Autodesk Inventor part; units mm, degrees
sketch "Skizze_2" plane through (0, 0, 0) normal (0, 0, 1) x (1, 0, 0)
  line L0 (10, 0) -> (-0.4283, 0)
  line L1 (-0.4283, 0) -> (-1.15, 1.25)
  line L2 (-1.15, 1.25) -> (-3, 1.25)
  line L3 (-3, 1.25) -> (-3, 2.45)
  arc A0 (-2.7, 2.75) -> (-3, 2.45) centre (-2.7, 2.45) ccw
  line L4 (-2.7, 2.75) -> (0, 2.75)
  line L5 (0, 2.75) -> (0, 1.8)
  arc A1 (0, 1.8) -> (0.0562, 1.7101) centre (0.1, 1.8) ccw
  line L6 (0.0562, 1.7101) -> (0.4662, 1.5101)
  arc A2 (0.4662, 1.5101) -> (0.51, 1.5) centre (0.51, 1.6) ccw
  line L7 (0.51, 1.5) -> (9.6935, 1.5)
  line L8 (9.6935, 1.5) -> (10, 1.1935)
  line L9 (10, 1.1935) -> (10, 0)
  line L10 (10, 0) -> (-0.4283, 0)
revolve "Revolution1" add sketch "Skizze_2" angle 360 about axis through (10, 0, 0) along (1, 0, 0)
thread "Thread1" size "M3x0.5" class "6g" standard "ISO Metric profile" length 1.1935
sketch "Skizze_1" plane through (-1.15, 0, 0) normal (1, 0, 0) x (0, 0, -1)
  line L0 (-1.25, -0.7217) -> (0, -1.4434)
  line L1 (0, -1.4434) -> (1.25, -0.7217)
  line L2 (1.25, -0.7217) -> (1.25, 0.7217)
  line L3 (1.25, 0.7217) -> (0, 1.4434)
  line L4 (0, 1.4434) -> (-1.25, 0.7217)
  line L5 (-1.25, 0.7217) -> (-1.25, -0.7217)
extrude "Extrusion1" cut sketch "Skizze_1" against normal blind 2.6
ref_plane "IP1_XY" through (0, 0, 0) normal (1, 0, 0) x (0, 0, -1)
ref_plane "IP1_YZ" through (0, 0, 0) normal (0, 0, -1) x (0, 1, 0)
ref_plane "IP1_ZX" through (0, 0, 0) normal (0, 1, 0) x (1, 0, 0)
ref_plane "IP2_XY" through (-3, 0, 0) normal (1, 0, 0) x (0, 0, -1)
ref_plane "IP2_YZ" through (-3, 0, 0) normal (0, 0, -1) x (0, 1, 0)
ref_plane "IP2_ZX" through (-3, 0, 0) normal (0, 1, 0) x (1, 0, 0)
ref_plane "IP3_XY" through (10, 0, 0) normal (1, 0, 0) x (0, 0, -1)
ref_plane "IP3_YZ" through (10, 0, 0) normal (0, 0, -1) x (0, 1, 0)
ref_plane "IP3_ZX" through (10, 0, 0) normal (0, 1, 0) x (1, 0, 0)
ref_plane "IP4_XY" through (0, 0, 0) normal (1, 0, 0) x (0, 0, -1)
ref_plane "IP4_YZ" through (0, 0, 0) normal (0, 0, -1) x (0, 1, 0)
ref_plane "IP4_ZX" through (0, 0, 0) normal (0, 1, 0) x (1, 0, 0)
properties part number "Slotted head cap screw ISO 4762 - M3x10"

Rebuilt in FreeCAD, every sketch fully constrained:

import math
import FreeCAD as App
import Part
import Sketcher

V = App.Vector
Q = App.Units.Quantity

doc = App.newDocument("Part")
body = doc.addObject("PartDesign::Body", "Body")

# Sketch on XY plane
sketch1 = body.newObject("Sketcher::SketchObject", "Sketch")
sketch1.AttachmentSupport = (doc.getObject("XY_Plane"), [""])
sketch1.MapMode = "FlatFace"
sketch1.addGeometry([
    Part.LineSegment(V(-0.428, 0, 0), V(10, 0, 0)),  # 0
    Part.LineSegment(V(10, 0, 0), V(10, 1.194, 0)),  # 1
    Part.LineSegment(V(10, 1.194, 0), V(9.694, 1.5, 0)),  # 2
    Part.LineSegment(V(9.694, 1.5, 0), V(0.51, 1.5, 0)),  # 3
    Part.ArcOfCircle(Part.Circle(V(0.51, 1.6, 0), V(0, 0, 1), 0.1), math.radians(-116), math.radians(-90)),  # 4
    Part.LineSegment(V(0.466, 1.51, 0), V(0.056, 1.71, 0)),  # 5
    Part.ArcOfCircle(Part.Circle(V(0.1, 1.8, 0), V(0, 0, 1), 0.1), math.radians(180), math.radians(244)),  # 6
    Part.LineSegment(V(0, 1.8, 0), V(0, 2.75, 0)),  # 7
    Part.LineSegment(V(0, 2.75, 0), V(-2.7, 2.75, 0)),  # 8
    Part.ArcOfCircle(Part.Circle(V(-2.7, 2.45, 0), V(0, 0, 1), 0.3), math.radians(90), math.radians(180)),  # 9
    Part.LineSegment(V(-3, 2.45, 0), V(-3, 1.25, 0)),  # 10
    Part.LineSegment(V(-3, 1.25, 0), V(-1.15, 1.25, 0)),  # 11
    Part.LineSegment(V(-1.15, 1.25, 0), V(-0.428, 0, 0)),  # 12
], False)
sketch1.addConstraint([
    Sketcher.Constraint("Coincident", 0, 2, 1, 1),
    Sketcher.Constraint("Coincident", 1, 2, 2, 1),
    Sketcher.Constraint("Coincident", 2, 2, 3, 1),
    Sketcher.Constraint("Tangent", 3, 2, 4, 2),
    Sketcher.Constraint("Tangent", 4, 1, 5, 1),
    Sketcher.Constraint("Tangent", 5, 2, 6, 2),
    Sketcher.Constraint("Tangent", 6, 1, 7, 1),
    Sketcher.Constraint("Coincident", 7, 2, 8, 1),
    Sketcher.Constraint("Tangent", 8, 2, 9, 1),
    Sketcher.Constraint("Tangent", 9, 2, 10, 1),
    Sketcher.Constraint("Coincident", 10, 2, 11, 1),
    Sketcher.Constraint("Coincident", 11, 2, 12, 1),
    Sketcher.Constraint("Coincident", 12, 2, 0, 1),
    Sketcher.Constraint("Horizontal", 0),
    Sketcher.Constraint("Vertical", 1),
    Sketcher.Constraint("Horizontal", 3),
    Sketcher.Constraint("Vertical", 7),
    Sketcher.Constraint("Horizontal", 8),
    Sketcher.Constraint("Vertical", 10),
    Sketcher.Constraint("Horizontal", 11),
    Sketcher.Constraint("Equal", 4, 6),
    Sketcher.Constraint("PointOnObject", 0, 2, -1),
    Sketcher.Constraint("PointOnObject", 6, 1, -2),
    Sketcher.Constraint("Radius", 4, Q("0.1 mm")),
    Sketcher.Constraint("Radius", 9, Q("0.3 mm")),
    Sketcher.Constraint("Angle", 2, Q("135 deg")),
    Sketcher.Constraint("Angle", 12, Q("-59.9996 deg")),
    Sketcher.Constraint("DistanceX", 8, 2, 8, 1, Q("2.7 mm")),
    Sketcher.Constraint("DistanceY", 10, 2, 10, 1, Q("1.2 mm")),
    Sketcher.Constraint("DistanceX", -1, 1, 0, 2, Q("10 mm")),
    Sketcher.Constraint("DistanceX", 11, 1, 11, 2, Q("1.85 mm")),
    Sketcher.Constraint("DistanceY", 7, 1, 7, 2, Q("0.95 mm")),
    Sketcher.Constraint("DistanceY", -1, 1, 4, 3, Q("1.6 mm")),
    Sketcher.Constraint("DistanceY", -1, 1, 6, 3, Q("1.8 mm")),
    Sketcher.Constraint("DistanceX", -1, 1, 4, 3, Q("0.51 mm")),
    Sketcher.Constraint("DistanceX", 3, 2, 3, 1, Q("9.1835 mm")),
])
revolution = body.newObject("PartDesign::Revolution", "Revolution")
revolution.Profile = sketch1
revolution.ReferenceAxis = (sketch1, ["H_Axis"])
revolution.Angle = 360

# Sketch on YZ plane
sketch2 = body.newObject("Sketcher::SketchObject", "Sketch001")
sketch2.AttachmentSupport = (doc.getObject("YZ_Plane"), [""])
sketch2.MapMode = "FlatFace"
sketch2.AttachmentOffset = App.Placement(V(0, 0, -1.15), App.Rotation())
sketch2.addGeometry([
    Part.LineSegment(V(0.7, 1.2, 0), V(-0.7, 1.2, 0)),  # 0
    Part.LineSegment(V(-0.7, 1.2, 0), V(-1.4, 0, 0)),  # 1
    Part.LineSegment(V(-1.4, 0, 0), V(-0.7, -1.2, 0)),  # 2
    Part.LineSegment(V(-0.7, -1.2, 0), V(0.7, -1.2, 0)),  # 3
    Part.LineSegment(V(0.7, -1.2, 0), V(1.4, 0, 0)),  # 4
    Part.LineSegment(V(1.4, 0, 0), V(0.7, 1.2, 0)),  # 5
], False)
sketch2.addConstraint([
    Sketcher.Constraint("Coincident", 0, 2, 1, 1),
    Sketcher.Constraint("Coincident", 1, 2, 2, 1),
    Sketcher.Constraint("Coincident", 2, 2, 3, 1),
    Sketcher.Constraint("Coincident", 3, 2, 4, 1),
    Sketcher.Constraint("Coincident", 4, 2, 5, 1),
    Sketcher.Constraint("Coincident", 5, 2, 0, 1),
    Sketcher.Constraint("Horizontal", 0),
    Sketcher.Constraint("Horizontal", 3),
    Sketcher.Constraint("Symmetric", 0, 2, 3, 2, -1, 1),
    Sketcher.Constraint("Symmetric", 1, 2, 4, 2, -1, 1),
    Sketcher.Constraint("PointOnObject", 1, 2, -1),
    Sketcher.Constraint("Parallel", 2, 5),
    Sketcher.Constraint("Vertical", 0, 2, 2, 2),
    Sketcher.Constraint("Angle", 1, Q("-120.0004 deg")),
    Sketcher.Constraint("DistanceY", 2, 2, 0, 2, Q("2.5 mm")),
    Sketcher.Constraint("DistanceX", 0, 2, 0, 1, Q("1.4434 mm")),
])
pocket1 = body.newObject("PartDesign::Pocket", "Pocket")
pocket1.Profile = sketch2
pocket1.Length = 2.6

doc.recompute()
